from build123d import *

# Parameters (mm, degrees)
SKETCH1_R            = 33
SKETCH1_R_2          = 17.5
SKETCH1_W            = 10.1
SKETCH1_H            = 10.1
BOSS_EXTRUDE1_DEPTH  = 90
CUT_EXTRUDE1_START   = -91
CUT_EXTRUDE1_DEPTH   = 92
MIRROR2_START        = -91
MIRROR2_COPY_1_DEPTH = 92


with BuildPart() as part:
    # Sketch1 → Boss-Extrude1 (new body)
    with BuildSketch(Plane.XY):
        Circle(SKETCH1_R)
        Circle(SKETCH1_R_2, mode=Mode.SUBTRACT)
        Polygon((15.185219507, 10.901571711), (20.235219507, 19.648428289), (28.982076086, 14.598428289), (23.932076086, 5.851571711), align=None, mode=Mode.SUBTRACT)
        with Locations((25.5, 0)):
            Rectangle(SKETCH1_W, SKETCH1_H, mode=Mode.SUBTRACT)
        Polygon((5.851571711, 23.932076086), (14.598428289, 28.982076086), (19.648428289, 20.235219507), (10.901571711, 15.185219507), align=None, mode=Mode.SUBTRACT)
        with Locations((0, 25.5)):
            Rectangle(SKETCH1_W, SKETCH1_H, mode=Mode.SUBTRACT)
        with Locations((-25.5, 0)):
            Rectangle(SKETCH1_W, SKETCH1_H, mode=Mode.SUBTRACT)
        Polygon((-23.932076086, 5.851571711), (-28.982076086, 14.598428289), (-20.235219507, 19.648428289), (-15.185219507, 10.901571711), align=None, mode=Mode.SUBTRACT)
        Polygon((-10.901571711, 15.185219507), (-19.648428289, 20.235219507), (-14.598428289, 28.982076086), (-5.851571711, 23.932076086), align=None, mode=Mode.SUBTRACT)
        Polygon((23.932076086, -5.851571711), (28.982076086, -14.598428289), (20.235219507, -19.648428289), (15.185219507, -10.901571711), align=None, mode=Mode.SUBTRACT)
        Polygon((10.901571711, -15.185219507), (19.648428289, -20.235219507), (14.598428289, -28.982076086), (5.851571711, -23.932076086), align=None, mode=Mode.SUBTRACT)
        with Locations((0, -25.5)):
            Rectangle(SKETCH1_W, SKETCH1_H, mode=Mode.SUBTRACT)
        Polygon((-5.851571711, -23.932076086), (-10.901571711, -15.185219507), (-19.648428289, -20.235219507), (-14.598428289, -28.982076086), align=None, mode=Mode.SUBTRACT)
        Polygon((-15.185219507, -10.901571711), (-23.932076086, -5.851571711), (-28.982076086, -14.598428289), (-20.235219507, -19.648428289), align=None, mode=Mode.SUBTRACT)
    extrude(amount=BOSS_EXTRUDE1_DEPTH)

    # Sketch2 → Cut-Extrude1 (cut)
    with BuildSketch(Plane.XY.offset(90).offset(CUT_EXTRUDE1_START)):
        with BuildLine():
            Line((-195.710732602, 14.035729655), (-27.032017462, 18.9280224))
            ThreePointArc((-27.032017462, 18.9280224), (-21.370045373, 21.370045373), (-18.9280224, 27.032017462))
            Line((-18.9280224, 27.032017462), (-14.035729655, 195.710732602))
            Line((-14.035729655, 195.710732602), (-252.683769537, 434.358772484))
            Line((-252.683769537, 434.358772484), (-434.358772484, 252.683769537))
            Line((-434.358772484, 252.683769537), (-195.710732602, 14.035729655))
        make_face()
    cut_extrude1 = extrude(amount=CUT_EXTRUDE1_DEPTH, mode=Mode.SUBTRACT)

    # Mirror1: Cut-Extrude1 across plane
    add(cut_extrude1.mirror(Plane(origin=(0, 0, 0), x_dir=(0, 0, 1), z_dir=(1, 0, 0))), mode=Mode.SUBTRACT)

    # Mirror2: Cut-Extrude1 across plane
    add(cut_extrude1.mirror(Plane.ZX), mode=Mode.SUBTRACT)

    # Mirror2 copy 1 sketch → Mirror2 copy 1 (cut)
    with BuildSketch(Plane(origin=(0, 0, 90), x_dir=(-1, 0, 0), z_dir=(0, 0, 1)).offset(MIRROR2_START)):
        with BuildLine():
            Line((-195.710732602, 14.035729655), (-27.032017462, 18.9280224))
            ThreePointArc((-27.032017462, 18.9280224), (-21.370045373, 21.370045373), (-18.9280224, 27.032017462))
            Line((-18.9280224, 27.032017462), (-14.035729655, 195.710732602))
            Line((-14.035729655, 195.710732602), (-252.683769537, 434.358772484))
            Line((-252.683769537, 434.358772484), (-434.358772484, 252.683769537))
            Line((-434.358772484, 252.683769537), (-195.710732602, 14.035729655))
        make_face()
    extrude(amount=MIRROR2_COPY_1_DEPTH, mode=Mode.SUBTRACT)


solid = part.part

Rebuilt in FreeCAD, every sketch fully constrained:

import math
import FreeCAD as App
import Part
import Sketcher
Q = App.Units.Quantity

doc = App.newDocument("Part")
body = doc.addObject("PartDesign::Body", "Body")

sketch1 = body.newObject("Sketcher::SketchObject", "Sketch")
sketch1.AttachmentSupport = (doc.getObject("XY_Plane"), [""])
sketch1.MapMode = "FlatFace"
sketch1.addGeometry([
    Part.Circle(App.Vector(0, 0, 0), App.Vector(0, 0, 1), 33),
    Part.LineSegment(App.Vector(-10.901572, -15.18522, 0), App.Vector(-5.851572, -23.932076, 0)),
    Part.LineSegment(App.Vector(-5.851572, -23.932076, 0), App.Vector(-14.598428, -28.982076, 0)),
    Part.LineSegment(App.Vector(-14.598428, -28.982076, 0), App.Vector(-19.648428, -20.23522, 0)),
    Part.LineSegment(App.Vector(-19.648428, -20.23522, 0), App.Vector(-10.901572, -15.18522, 0)),
    Part.LineSegment(App.Vector(-23.932076, -5.851572, 0), App.Vector(-15.18522, -10.901572, 0)),
    Part.LineSegment(App.Vector(-15.18522, -10.901572, 0), App.Vector(-20.23522, -19.648428, 0)),
    Part.LineSegment(App.Vector(-20.23522, -19.648428, 0), App.Vector(-28.982076, -14.598428, 0)),
    Part.LineSegment(App.Vector(-28.982076, -14.598428, 0), App.Vector(-23.932076, -5.851572, 0)),
    Part.LineSegment(App.Vector(5.05, -30.55, 0), App.Vector(-5.05, -30.55, 0)),
    Part.LineSegment(App.Vector(-5.05, -30.55, 0), App.Vector(-5.05, -20.45, 0)),
    Part.LineSegment(App.Vector(-5.05, -20.45, 0), App.Vector(5.05, -20.45, 0)),
    Part.LineSegment(App.Vector(5.05, -20.45, 0), App.Vector(5.05, -30.55, 0)),
    Part.LineSegment(App.Vector(5.851572, -23.932076, 0), App.Vector(10.901572, -15.18522, 0)),
    Part.LineSegment(App.Vector(10.901572, -15.18522, 0), App.Vector(19.648428, -20.23522, 0)),
    Part.LineSegment(App.Vector(19.648428, -20.23522, 0), App.Vector(14.598428, -28.982076, 0)),
    Part.LineSegment(App.Vector(14.598428, -28.982076, 0), App.Vector(5.851572, -23.932076, 0)),
    Part.LineSegment(App.Vector(15.18522, -10.901572, 0), App.Vector(23.932076, -5.851572, 0)),
    Part.LineSegment(App.Vector(23.932076, -5.851572, 0), App.Vector(28.982076, -14.598428, 0)),
    Part.LineSegment(App.Vector(28.982076, -14.598428, 0), App.Vector(20.23522, -19.648428, 0)),
    Part.LineSegment(App.Vector(20.23522, -19.648428, 0), App.Vector(15.18522, -10.901572, 0)),
    Part.LineSegment(App.Vector(-20.45, -5.05, 0), App.Vector(-30.55, -5.05, 0)),
    Part.LineSegment(App.Vector(-30.55, -5.05, 0), App.Vector(-30.55, 5.05, 0)),
    Part.LineSegment(App.Vector(-30.55, 5.05, 0), App.Vector(-20.45, 5.05, 0)),
    Part.LineSegment(App.Vector(-20.45, 5.05, 0), App.Vector(-20.45, -5.05, 0)),
    Part.LineSegment(App.Vector(-15.18522, 10.901572, 0), App.Vector(-23.932076, 5.851572, 0)),
    Part.LineSegment(App.Vector(-23.932076, 5.851572, 0), App.Vector(-28.982076, 14.598428, 0)),
    Part.LineSegment(App.Vector(-28.982076, 14.598428, 0), App.Vector(-20.23522, 19.648428, 0)),
    Part.LineSegment(App.Vector(-20.23522, 19.648428, 0), App.Vector(-15.18522, 10.901572, 0)),
    Part.LineSegment(App.Vector(-5.851572, 23.932076, 0), App.Vector(-10.901572, 15.18522, 0)),
    Part.LineSegment(App.Vector(-10.901572, 15.18522, 0), App.Vector(-19.648428, 20.23522, 0)),
    Part.LineSegment(App.Vector(-19.648428, 20.23522, 0), App.Vector(-14.598428, 28.982076, 0)),
    Part.LineSegment(App.Vector(-14.598428, 28.982076, 0), App.Vector(-5.851572, 23.932076, 0)),
    Part.Circle(App.Vector(0, 0, 0), App.Vector(0, 0, 1), 17.5),
    Part.LineSegment(App.Vector(30.55, -5.05, 0), App.Vector(20.45, -5.05, 0)),
    Part.LineSegment(App.Vector(20.45, -5.05, 0), App.Vector(20.45, 5.05, 0)),
    Part.LineSegment(App.Vector(20.45, 5.05, 0), App.Vector(30.55, 5.05, 0)),
    Part.LineSegment(App.Vector(30.55, 5.05, 0), App.Vector(30.55, -5.05, 0)),
    Part.LineSegment(App.Vector(23.932076, 5.851572, 0), App.Vector(15.18522, 10.901572, 0)),
    Part.LineSegment(App.Vector(15.18522, 10.901572, 0), App.Vector(20.23522, 19.648428, 0)),
    Part.LineSegment(App.Vector(20.23522, 19.648428, 0), App.Vector(28.982076, 14.598428, 0)),
    Part.LineSegment(App.Vector(28.982076, 14.598428, 0), App.Vector(23.932076, 5.851572, 0)),
    Part.LineSegment(App.Vector(10.901572, 15.18522, 0), App.Vector(5.851572, 23.932076, 0)),
    Part.LineSegment(App.Vector(5.851572, 23.932076, 0), App.Vector(14.598428, 28.982076, 0)),
    Part.LineSegment(App.Vector(14.598428, 28.982076, 0), App.Vector(19.648428, 20.23522, 0)),
    Part.LineSegment(App.Vector(19.648428, 20.23522, 0), App.Vector(10.901572, 15.18522, 0)),
    Part.LineSegment(App.Vector(5.05, 20.45, 0), App.Vector(-5.05, 20.45, 0)),
    Part.LineSegment(App.Vector(-5.05, 20.45, 0), App.Vector(-5.05, 30.55, 0)),
    Part.LineSegment(App.Vector(-5.05, 30.55, 0), App.Vector(5.05, 30.55, 0)),
    Part.LineSegment(App.Vector(5.05, 30.55, 0), App.Vector(5.05, 20.45, 0)),
], False)
sketch1.addConstraint([
    Sketcher.Constraint("Coincident", 1, 2, 2, 1),
    Sketcher.Constraint("Coincident", 2, 2, 3, 1),
    Sketcher.Constraint("Coincident", 3, 2, 4, 1),
    Sketcher.Constraint("Coincident", 4, 2, 1, 1),
    Sketcher.Constraint("Coincident", 5, 2, 6, 1),
    Sketcher.Constraint("Coincident", 6, 2, 7, 1),
    Sketcher.Constraint("Coincident", 7, 2, 8, 1),
    Sketcher.Constraint("Coincident", 8, 2, 5, 1),
    Sketcher.Constraint("Coincident", 9, 2, 10, 1),
    Sketcher.Constraint("Coincident", 10, 2, 11, 1),
    Sketcher.Constraint("Coincident", 11, 2, 12, 1),
    Sketcher.Constraint("Coincident", 12, 2, 9, 1),
    Sketcher.Constraint("Coincident", 13, 2, 14, 1),
    Sketcher.Constraint("Coincident", 14, 2, 15, 1),
    Sketcher.Constraint("Coincident", 15, 2, 16, 1),
    Sketcher.Constraint("Coincident", 16, 2, 13, 1),
    Sketcher.Constraint("Coincident", 17, 2, 18, 1),
    Sketcher.Constraint("Coincident", 18, 2, 19, 1),
    Sketcher.Constraint("Coincident", 19, 2, 20, 1),
    Sketcher.Constraint("Coincident", 20, 2, 17, 1),
    Sketcher.Constraint("Coincident", 21, 2, 22, 1),
    Sketcher.Constraint("Coincident", 22, 2, 23, 1),
    Sketcher.Constraint("Coincident", 23, 2, 24, 1),
    Sketcher.Constraint("Coincident", 24, 2, 21, 1),
    Sketcher.Constraint("Coincident", 25, 2, 26, 1),
    Sketcher.Constraint("Coincident", 26, 2, 27, 1),
    Sketcher.Constraint("Coincident", 27, 2, 28, 1),
    Sketcher.Constraint("Coincident", 28, 2, 25, 1),
    Sketcher.Constraint("Coincident", 29, 2, 30, 1),
    Sketcher.Constraint("Coincident", 30, 2, 31, 1),
    Sketcher.Constraint("Coincident", 31, 2, 32, 1),
    Sketcher.Constraint("Coincident", 32, 2, 29, 1),
    Sketcher.Constraint("Coincident", 34, 2, 35, 1),
    Sketcher.Constraint("Coincident", 35, 2, 36, 1),
    Sketcher.Constraint("Coincident", 36, 2, 37, 1),
    Sketcher.Constraint("Coincident", 37, 2, 34, 1),
    Sketcher.Constraint("Coincident", 38, 2, 39, 1),
    Sketcher.Constraint("Coincident", 39, 2, 40, 1),
    Sketcher.Constraint("Coincident", 40, 2, 41, 1),
    Sketcher.Constraint("Coincident", 41, 2, 38, 1),
    Sketcher.Constraint("Coincident", 42, 2, 43, 1),
    Sketcher.Constraint("Coincident", 43, 2, 44, 1),
    Sketcher.Constraint("Coincident", 44, 2, 45, 1),
    Sketcher.Constraint("Coincident", 45, 2, 42, 1),
    Sketcher.Constraint("Coincident", 46, 2, 47, 1),
    Sketcher.Constraint("Coincident", 47, 2, 48, 1),
    Sketcher.Constraint("Coincident", 48, 2, 49, 1),
    Sketcher.Constraint("Coincident", 49, 2, 46, 1),
    Sketcher.Constraint("Horizontal", 9),
    Sketcher.Constraint("Vertical", 10),
    Sketcher.Constraint("Horizontal", 11),
    Sketcher.Constraint("Vertical", 12),
    Sketcher.Constraint("Horizontal", 21),
    Sketcher.Constraint("Vertical", 22),
    Sketcher.Constraint("Horizontal", 23),
    Sketcher.Constraint("Vertical", 24),
    Sketcher.Constraint("Horizontal", 34),
    Sketcher.Constraint("Vertical", 35),
    Sketcher.Constraint("Horizontal", 36),
    Sketcher.Constraint("Vertical", 37),
    Sketcher.Constraint("Horizontal", 46),
    Sketcher.Constraint("Vertical", 47),
    Sketcher.Constraint("Horizontal", 48),
    Sketcher.Constraint("Vertical", 49),
    Sketcher.Constraint("Coincident", 0, 3, -1, 1),
    Sketcher.Constraint("Coincident", 33, 3, -1, 1),
    Sketcher.Constraint("Symmetric", 17, 2, 25, 2, -1, 1),
    Sketcher.Constraint("Symmetric", 18, 2, 26, 2, -1, 1),
    Sketcher.Constraint("Symmetric", 19, 2, 27, 2, -1, 1),
    Sketcher.Constraint("Symmetric", 20, 2, 28, 2, -1, 1),
    Sketcher.Constraint("Symmetric", 13, 2, 29, 2, -1, 1),
    Sketcher.Constraint("Symmetric", 14, 2, 30, 2, -1, 1),
    Sketcher.Constraint("Symmetric", 15, 2, 31, 2, -1, 1),
    Sketcher.Constraint("Symmetric", 16, 2, 32, 2, -1, 1),
    Sketcher.Constraint("Symmetric", 23, 2, 34, 2, -1, 1),
    Sketcher.Constraint("Symmetric", 21, 2, 36, 2, -1, 1),
    Sketcher.Constraint("Symmetric", 5, 2, 38, 2, -1, 1),
    Sketcher.Constraint("Symmetric", 6, 2, 39, 2, -1, 1),
    Sketcher.Constraint("Symmetric", 7, 2, 40, 2, -1, 1),
    Sketcher.Constraint("Symmetric", 8, 2, 41, 2, -1, 1),
    Sketcher.Constraint("Symmetric", 1, 2, 42, 2, -1, 1),
    Sketcher.Constraint("Symmetric", 2, 2, 43, 2, -1, 1),
    Sketcher.Constraint("Symmetric", 3, 2, 44, 2, -1, 1),
    Sketcher.Constraint("Symmetric", 4, 2, 45, 2, -1, 1),
    Sketcher.Constraint("Symmetric", 11, 2, 46, 2, -1, 1),
    Sketcher.Constraint("Symmetric", 9, 2, 48, 2, -1, 1),
    Sketcher.Constraint("Symmetric", 4, 2, 13, 2, -2),
    Sketcher.Constraint("Symmetric", 3, 2, 14, 2, -2),
    Sketcher.Constraint("Symmetric", 2, 2, 15, 2, -2),
    Sketcher.Constraint("Symmetric", 1, 2, 16, 2, -2),
    Sketcher.Constraint("Symmetric", 8, 2, 17, 2, -2),
    Sketcher.Constraint("Symmetric", 7, 2, 18, 2, -2),
    Sketcher.Constraint("Symmetric", 6, 2, 19, 2, -2),
    Sketcher.Constraint("Symmetric", 5, 2, 20, 2, -2),
    Sketcher.Constraint("Perpendicular", 1, 2),
    Sketcher.Constraint("Perpendicular", 2, 3),
    Sketcher.Constraint("Perpendicular", 3, 4),
    Sketcher.Constraint("Perpendicular", 5, 6),
    Sketcher.Constraint("Perpendicular", 6, 7),
    Sketcher.Constraint("Perpendicular", 7, 8),
    Sketcher.Constraint("Parallel", 8, 13),
    Sketcher.Constraint("Horizontal", 24, 2, 34, 2),
    Sketcher.Constraint("Vertical", 10, 2, 46, 2),
    Sketcher.Constraint("Equal", 11, 21),
    Sketcher.Constraint("Equal", 48, 10),
    Sketcher.Constraint("Equal", 12, 22),
    Sketcher.Constraint("Equal", 1, 2),
    Sketcher.Constraint("Equal", 4, 5),
    Sketcher.Constraint("Equal", 5, 6),
    Sketcher.Constraint("Diameter", 0, Q("66 mm")),
    Sketcher.Constraint("Diameter", 33, Q("35 mm")),
    Sketcher.Constraint("Angle", 1, Q("-60 deg")),
    Sketcher.Constraint("DistanceX", 9, 2, 9, 1, Q("10.1 mm")),
    Sketcher.Constraint("Distance", 1, Q("10.1 mm")),
    Sketcher.Constraint("DistanceX", 1, 2, 14, 2, Q("25.5 mm")),
    Sketcher.Constraint("DistanceY", 17, 2, 39, 2, Q("25.5 mm")),
    Sketcher.Constraint("DistanceY", 9, 2, -1, 1, Q("30.55 mm")),
    Sketcher.Constraint("DistanceX", 21, 2, -1, 1, Q("30.55 mm")),
    Sketcher.Constraint("DistanceY", 3, 2, -1, 1, Q("20.23522 mm")),
    Sketcher.Constraint("DistanceX", 5, 2, -1, 1, Q("15.18522 mm")),
])
pad1 = body.newObject("PartDesign::Pad", "Pad")
pad1.Profile = sketch1
pad1.Length = 90

sketch2 = body.newObject("Sketcher::SketchObject", "Sketch001")
sketch2.AttachmentSupport = (doc.getObject("XY_Plane"), [""])
sketch2.MapMode = "FlatFace"
sketch2.AttachmentOffset = App.Placement(App.Vector(0, 0, -1), App.Rotation())
sketch2.addGeometry([
    Part.LineSegment(App.Vector(-195.710733, 14.03573, 0), App.Vector(-27.032017, 18.928022, 0)),
    Part.ArcOfCircle(Part.Circle(App.Vector(-27.274083, 27.274083, 0), App.Vector(0, 0, 1), 8.349571), math.radians(-88.338681), math.radians(-1.661319)),
    Part.LineSegment(App.Vector(-18.928022, 27.032017, 0), App.Vector(-14.03573, 195.710733, 0)),
    Part.LineSegment(App.Vector(-14.03573, 195.710733, 0), App.Vector(-252.68377, 434.358772, 0)),
    Part.LineSegment(App.Vector(-252.68377, 434.358772, 0), App.Vector(-434.358772, 252.68377, 0)),
    Part.LineSegment(App.Vector(-434.358772, 252.68377, 0), App.Vector(-195.710733, 14.03573, 0)),
], False)
sketch2.addConstraint([
    Sketcher.Constraint("Tangent", 0, 2, 1, 1),
    Sketcher.Constraint("Tangent", 1, 2, 2, 1),
    Sketcher.Constraint("Coincident", 2, 2, 3, 1),
    Sketcher.Constraint("Coincident", 3, 2, 4, 1),
    Sketcher.Constraint("Coincident", 4, 2, 5, 1),
    Sketcher.Constraint("Coincident", 5, 2, 0, 1),
    Sketcher.Constraint("Perpendicular", 3, 4),
    Sketcher.Constraint("Perpendicular", 4, 5),
    Sketcher.Constraint("Equal", 0, 2),
    Sketcher.Constraint("Equal", 3, 5),
    Sketcher.Constraint("Angle", 3, Q("135 deg")),
    Sketcher.Constraint("Radius", 1, Q("8.349571 mm")),
    Sketcher.Constraint("DistanceX", 2, 2, -1, 1, Q("14.03573 mm")),
    Sketcher.Constraint("DistanceX", 3, 2, -1, 1, Q("252.68377 mm")),
    Sketcher.Constraint("DistanceY", -1, 1, 4, 2, Q("252.68377 mm")),
    Sketcher.Constraint("DistanceY", 1, 3, 2, 2, Q("168.436649 mm")),
    Sketcher.Constraint("Distance", 0, Q("168.749647 mm")),
])
pocket1 = body.newObject("PartDesign::Pocket", "Pocket")
pocket1.Profile = sketch2
pocket1.Length = 92
pocket1.Reversed = True
doc.recompute()

mirrored = body.newObject("PartDesign::Mirrored", "Mirrored")
mirrored.Originals = [pocket1]
mirrored.MirrorPlane = (doc.getObject("YZ_Plane"), [""])
body.Tip = mirrored
doc.recompute()

mirrored2 = body.newObject("PartDesign::Mirrored", "Mirrored001")
mirrored2.Originals = [pocket1]
mirrored2.MirrorPlane = (doc.getObject("XZ_Plane"), [""])
body.Tip = mirrored2

sketch3 = body.newObject("Sketcher::SketchObject", "Sketch002")
sketch3.AttachmentSupport = (doc.getObject("XY_Plane"), [""])
sketch3.MapMode = "FlatFace"
sketch3.AttachmentOffset = App.Placement(App.Vector(0, 0, -1), App.Rotation())
sketch3.addGeometry([
    Part.LineSegment(App.Vector(195.710733, -14.03573, 0), App.Vector(27.032017, -18.928022, 0)),
    Part.ArcOfCircle(Part.Circle(App.Vector(27.274083, -27.274083, 0), App.Vector(0, 0, 1), 8.349571), math.radians(91.661319), math.radians(178.338681)),
    Part.LineSegment(App.Vector(18.928022, -27.032017, 0), App.Vector(14.03573, -195.710733, 0)),
    Part.LineSegment(App.Vector(14.03573, -195.710733, 0), App.Vector(252.68377, -434.358772, 0)),
    Part.LineSegment(App.Vector(252.68377, -434.358772, 0), App.Vector(434.358772, -252.68377, 0)),
    Part.LineSegment(App.Vector(434.358772, -252.68377, 0), App.Vector(195.710733, -14.03573, 0)),
], False)
sketch3.addConstraint([
    Sketcher.Constraint("Tangent", 0, 2, 1, 1),
    Sketcher.Constraint("Tangent", 1, 2, 2, 1),
    Sketcher.Constraint("Coincident", 2, 2, 3, 1),
    Sketcher.Constraint("Coincident", 3, 2, 4, 1),
    Sketcher.Constraint("Coincident", 4, 2, 5, 1),
    Sketcher.Constraint("Coincident", 5, 2, 0, 1),
    Sketcher.Constraint("Perpendicular", 3, 4),
    Sketcher.Constraint("Perpendicular", 4, 5),
    Sketcher.Constraint("Equal", 0, 2),
    Sketcher.Constraint("Equal", 3, 5),
    Sketcher.Constraint("Angle", 3, Q("-45 deg")),
    Sketcher.Constraint("Radius", 1, Q("8.349571 mm")),
    Sketcher.Constraint("DistanceX", -1, 1, 2, 2, Q("14.03573 mm")),
    Sketcher.Constraint("DistanceX", -1, 1, 3, 2, Q("252.68377 mm")),
    Sketcher.Constraint("DistanceY", 4, 2, -1, 1, Q("252.68377 mm")),
    Sketcher.Constraint("DistanceY", 2, 2, 1, 3, Q("168.436649 mm")),
    Sketcher.Constraint("Distance", 0, Q("168.749647 mm")),
])
pocket2 = body.newObject("PartDesign::Pocket", "Pocket001")
pocket2.Profile = sketch3
pocket2.Length = 92
pocket2.Reversed = True

doc.recompute()
